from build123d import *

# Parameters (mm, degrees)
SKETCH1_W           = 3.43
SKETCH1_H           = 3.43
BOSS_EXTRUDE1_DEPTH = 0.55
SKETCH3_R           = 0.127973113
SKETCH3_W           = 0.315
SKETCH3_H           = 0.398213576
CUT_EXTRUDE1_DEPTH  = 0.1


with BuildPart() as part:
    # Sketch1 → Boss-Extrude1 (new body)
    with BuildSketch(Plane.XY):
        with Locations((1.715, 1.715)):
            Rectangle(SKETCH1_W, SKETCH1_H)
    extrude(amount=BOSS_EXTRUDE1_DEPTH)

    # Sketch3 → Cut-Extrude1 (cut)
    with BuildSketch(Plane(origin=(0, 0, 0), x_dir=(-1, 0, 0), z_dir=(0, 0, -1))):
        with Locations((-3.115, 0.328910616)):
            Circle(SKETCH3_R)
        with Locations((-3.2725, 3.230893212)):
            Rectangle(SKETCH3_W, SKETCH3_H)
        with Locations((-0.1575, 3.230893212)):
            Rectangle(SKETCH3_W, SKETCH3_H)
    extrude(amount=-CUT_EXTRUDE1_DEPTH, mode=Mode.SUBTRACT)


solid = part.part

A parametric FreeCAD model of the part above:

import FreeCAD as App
import Part
import Sketcher

V = App.Vector

doc = App.newDocument("Part")
body = doc.addObject("PartDesign::Body", "Body")

sketch1 = doc.addObject("Sketcher::SketchObject", "Sketch")
body.addObject(sketch1)
sketch1.AttachmentSupport = (doc.XY_Plane, [""])
sketch1.MapMode = "FlatFace"
sketch1.addGeometry([
    Part.LineSegment(V(0, 3.43, 0), V(0, 0, 0)),
    Part.LineSegment(V(0, 0, 0), V(3.43, 0, 0)),
    Part.LineSegment(V(3.43, 0, 0), V(3.43, 3.43, 0)),
    Part.LineSegment(V(3.43, 3.43, 0), V(0, 3.43, 0)),
], False)
sketch1.addConstraint([
    Sketcher.Constraint("Coincident", 0, 2, 1, 1),
    Sketcher.Constraint("Coincident", 1, 2, 2, 1),
    Sketcher.Constraint("Coincident", 2, 2, 3, 1),
    Sketcher.Constraint("Coincident", 3, 2, 0, 1),
    Sketcher.Constraint("Vertical", 0),
    Sketcher.Constraint("Horizontal", 1),
    Sketcher.Constraint("Vertical", 2),
    Sketcher.Constraint("Horizontal", 3),
    Sketcher.Constraint("Coincident", 0, 2, -1, 1),
    Sketcher.Constraint("Equal", 3, 0),
    Sketcher.Constraint("DistanceX", 1, 1, 1, 2, 3.43),
])
pad1 = doc.addObject("PartDesign::Pad", "Pad")
body.addObject(pad1)
pad1.Profile = sketch1
pad1.Length = 0.55

sketch2 = doc.addObject("Sketcher::SketchObject", "Sketch001")
body.addObject(sketch2)
sketch2.AttachmentSupport = (doc.XY_Plane, [""])
sketch2.MapMode = "FlatFace"
sketch2.addGeometry([
    Part.Circle(V(3.115, 0.328911, 0), V(0, 0, 1), 0.127973),
    Part.LineSegment(V(3.43, 3.43, 0), V(3.43, 3.031786, 0)),
    Part.LineSegment(V(3.43, 3.031786, 0), V(3.115, 3.031786, 0)),
    Part.LineSegment(V(3.115, 3.031786, 0), V(3.115, 3.43, 0)),
    Part.LineSegment(V(3.115, 3.43, 0), V(3.43, 3.43, 0)),
    Part.LineSegment(V(0.315, 3.43, 0), V(0.315, 3.031786, 0)),
    Part.LineSegment(V(0.315, 3.031786, 0), V(0, 3.031786, 0)),
    Part.LineSegment(V(0, 3.031786, 0), V(0, 3.43, 0)),
    Part.LineSegment(V(0, 3.43, 0), V(0.315, 3.43, 0)),
], False)
sketch2.addConstraint([
    Sketcher.Constraint("Coincident", 1, 2, 2, 1),
    Sketcher.Constraint("Coincident", 2, 2, 3, 1),
    Sketcher.Constraint("Coincident", 3, 2, 4, 1),
    Sketcher.Constraint("Coincident", 4, 2, 1, 1),
    Sketcher.Constraint("Coincident", 5, 2, 6, 1),
    Sketcher.Constraint("Coincident", 6, 2, 7, 1),
    Sketcher.Constraint("Coincident", 7, 2, 8, 1),
    Sketcher.Constraint("Coincident", 8, 2, 5, 1),
    Sketcher.Constraint("Vertical", 1),
    Sketcher.Constraint("Horizontal", 2),
    Sketcher.Constraint("Vertical", 3),
    Sketcher.Constraint("Horizontal", 4),
    Sketcher.Constraint("Vertical", 5),
    Sketcher.Constraint("Horizontal", 6),
    Sketcher.Constraint("Vertical", 7),
    Sketcher.Constraint("Horizontal", 8),
    Sketcher.Constraint("PointOnObject", 6, 2, -2),
    Sketcher.Constraint("Horizontal", 2, 2, 5, 2),
    Sketcher.Constraint("Horizontal", 4, 2, 7, 2),
    Sketcher.Constraint("Vertical", 0, 3, 2, 2),
    Sketcher.Constraint("Equal", 4, 6),
    Sketcher.Constraint("DistanceX", 5, 2, 2, 2, 2.8),
    Sketcher.Constraint("DistanceX", 2, 2, 2, 1, 0.315),
    Sketcher.Constraint("DistanceY", -1, 1, 3, 2, 3.43),
    Sketcher.Constraint("Diameter", 0, 0.255946),
    Sketcher.Constraint("DistanceY", 1, 2, 1, 1, 0.398214),
    Sketcher.Constraint("DistanceY", -1, 1, 0, 3, 0.328911),
])
pocket1 = doc.addObject("PartDesign::Pocket", "Pocket")
body.addObject(pocket1)
pocket1.Profile = sketch2
pocket1.Length = 0.1
pocket1.Reversed = True

doc.recompute()
